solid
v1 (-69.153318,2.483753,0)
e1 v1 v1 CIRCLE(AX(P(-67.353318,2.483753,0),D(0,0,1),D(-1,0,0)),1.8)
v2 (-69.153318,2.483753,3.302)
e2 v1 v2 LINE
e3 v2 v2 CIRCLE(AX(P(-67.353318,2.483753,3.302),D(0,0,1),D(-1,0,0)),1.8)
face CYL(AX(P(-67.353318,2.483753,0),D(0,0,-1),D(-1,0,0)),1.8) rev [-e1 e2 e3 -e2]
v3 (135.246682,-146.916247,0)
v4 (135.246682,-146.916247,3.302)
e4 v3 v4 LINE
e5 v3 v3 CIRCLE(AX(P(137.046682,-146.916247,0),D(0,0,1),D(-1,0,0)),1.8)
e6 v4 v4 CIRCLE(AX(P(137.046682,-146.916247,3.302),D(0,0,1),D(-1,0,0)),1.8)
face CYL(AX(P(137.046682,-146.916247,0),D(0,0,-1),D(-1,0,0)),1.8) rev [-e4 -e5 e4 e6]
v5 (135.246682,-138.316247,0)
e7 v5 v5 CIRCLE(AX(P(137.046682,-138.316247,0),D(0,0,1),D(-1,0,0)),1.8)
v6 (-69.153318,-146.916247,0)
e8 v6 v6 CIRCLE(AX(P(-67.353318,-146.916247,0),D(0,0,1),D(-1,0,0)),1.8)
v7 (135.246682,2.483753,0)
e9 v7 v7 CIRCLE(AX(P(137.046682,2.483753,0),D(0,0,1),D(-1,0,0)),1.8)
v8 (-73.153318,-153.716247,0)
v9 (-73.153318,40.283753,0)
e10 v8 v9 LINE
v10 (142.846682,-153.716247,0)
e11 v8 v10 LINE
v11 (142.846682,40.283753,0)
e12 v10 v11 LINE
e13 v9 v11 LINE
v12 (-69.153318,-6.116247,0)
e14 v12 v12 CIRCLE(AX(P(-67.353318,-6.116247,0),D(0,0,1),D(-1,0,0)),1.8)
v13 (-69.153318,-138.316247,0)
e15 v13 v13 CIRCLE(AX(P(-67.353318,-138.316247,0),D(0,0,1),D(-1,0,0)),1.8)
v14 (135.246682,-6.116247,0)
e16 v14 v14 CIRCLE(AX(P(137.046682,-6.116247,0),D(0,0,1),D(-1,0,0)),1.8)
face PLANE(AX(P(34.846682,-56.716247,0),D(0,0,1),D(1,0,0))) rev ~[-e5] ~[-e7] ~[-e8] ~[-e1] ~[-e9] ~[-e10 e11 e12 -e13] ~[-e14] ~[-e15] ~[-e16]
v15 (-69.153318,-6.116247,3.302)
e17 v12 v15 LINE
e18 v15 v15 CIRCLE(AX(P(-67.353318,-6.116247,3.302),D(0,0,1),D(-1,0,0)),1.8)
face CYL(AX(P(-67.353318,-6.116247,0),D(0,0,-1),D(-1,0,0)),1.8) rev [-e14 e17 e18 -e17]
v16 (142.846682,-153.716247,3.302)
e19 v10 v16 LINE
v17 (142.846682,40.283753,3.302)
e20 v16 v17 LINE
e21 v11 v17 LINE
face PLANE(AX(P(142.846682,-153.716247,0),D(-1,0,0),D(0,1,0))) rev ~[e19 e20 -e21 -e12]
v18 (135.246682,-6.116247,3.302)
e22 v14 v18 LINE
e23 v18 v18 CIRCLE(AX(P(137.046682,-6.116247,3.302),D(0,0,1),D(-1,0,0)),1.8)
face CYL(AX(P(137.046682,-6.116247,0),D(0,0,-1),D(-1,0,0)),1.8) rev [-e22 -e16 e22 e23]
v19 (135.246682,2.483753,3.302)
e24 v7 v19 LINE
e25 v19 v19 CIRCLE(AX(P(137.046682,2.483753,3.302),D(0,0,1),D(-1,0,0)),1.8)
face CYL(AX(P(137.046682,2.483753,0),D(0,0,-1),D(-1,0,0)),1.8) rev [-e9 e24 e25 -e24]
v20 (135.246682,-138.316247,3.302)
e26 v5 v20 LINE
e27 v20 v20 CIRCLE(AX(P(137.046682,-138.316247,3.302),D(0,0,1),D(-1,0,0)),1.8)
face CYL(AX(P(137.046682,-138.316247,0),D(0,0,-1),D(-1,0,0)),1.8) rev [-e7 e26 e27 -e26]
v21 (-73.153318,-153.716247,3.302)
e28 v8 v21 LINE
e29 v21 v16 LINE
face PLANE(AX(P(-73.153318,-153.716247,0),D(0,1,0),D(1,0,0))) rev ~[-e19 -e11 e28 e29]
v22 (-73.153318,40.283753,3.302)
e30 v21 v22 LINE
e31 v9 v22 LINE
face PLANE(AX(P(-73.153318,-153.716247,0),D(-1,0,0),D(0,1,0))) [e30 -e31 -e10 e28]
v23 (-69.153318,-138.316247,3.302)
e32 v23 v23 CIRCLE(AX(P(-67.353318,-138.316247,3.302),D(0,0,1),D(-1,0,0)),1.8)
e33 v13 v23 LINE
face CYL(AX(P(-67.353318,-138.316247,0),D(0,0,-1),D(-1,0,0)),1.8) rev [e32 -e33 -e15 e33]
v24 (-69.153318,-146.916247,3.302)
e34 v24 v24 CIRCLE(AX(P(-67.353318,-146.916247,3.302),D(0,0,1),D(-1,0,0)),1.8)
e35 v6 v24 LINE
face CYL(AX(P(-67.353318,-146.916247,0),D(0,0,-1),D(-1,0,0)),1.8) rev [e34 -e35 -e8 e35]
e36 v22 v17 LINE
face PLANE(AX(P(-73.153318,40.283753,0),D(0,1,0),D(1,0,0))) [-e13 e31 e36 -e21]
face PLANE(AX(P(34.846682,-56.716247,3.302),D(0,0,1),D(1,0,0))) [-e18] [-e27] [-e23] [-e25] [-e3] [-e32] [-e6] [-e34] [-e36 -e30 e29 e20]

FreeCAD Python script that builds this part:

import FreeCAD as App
import Part
import Sketcher

V = App.Vector


def add_polygon(sketch, points):
    """Adds a closed chain of lines whose ends are joined by coincident constraints."""
    first, n = sketch.GeometryCount, len(points)
    for a, b in zip(points, points[1:] + points[:1]):
        sketch.addGeometry(Part.LineSegment(App.Vector(*a, 0), App.Vector(*b, 0)), False)
    for i in range(n):
        sketch.addConstraint(Sketcher.Constraint("Coincident", first + i, 2, first + (i + 1) % n, 1))

doc = App.newDocument("Part")
body = doc.addObject("PartDesign::Body", "Body")

sketch1 = body.newObject("Sketcher::SketchObject", "Sketch")
sketch1.AttachmentSupport = (doc.getObject("XY_Plane"), [""])
sketch1.MapMode = "FlatFace"
add_polygon(sketch1, [(-73.2, 40.3), (-73.2, -153.7), (142.8, -153.7), (142.8, 40.3)])
sketch1.addGeometry(Part.Circle(V(-67.4, -146.9, 0), V(0, 0, 1), 1.8), False)
sketch1.addGeometry(Part.Circle(V(-67.4, -138.3, 0), V(0, 0, 1), 1.8), False)
sketch1.addGeometry(Part.Circle(V(137, -146.9, 0), V(0, 0, 1), 1.8), False)
sketch1.addGeometry(Part.Circle(V(137, -138.3, 0), V(0, 0, 1), 1.8), False)
sketch1.addGeometry(Part.Circle(V(-67.4, -6.1, 0), V(0, 0, 1), 1.8), False)
sketch1.addGeometry(Part.Circle(V(-67.4, 2.5, 0), V(0, 0, 1), 1.8), False)
sketch1.addGeometry(Part.Circle(V(137, -6.1, 0), V(0, 0, 1), 1.8), False)
sketch1.addGeometry(Part.Circle(V(137, 2.5, 0), V(0, 0, 1), 1.8), False)
sketch1.addConstraint([
    Sketcher.Constraint("Vertical", 0),
    Sketcher.Constraint("Horizontal", 1),
    Sketcher.Constraint("Vertical", 2),
    Sketcher.Constraint("Horizontal", 3),
    Sketcher.Constraint("Equal", 4, 5),
    Sketcher.Constraint("Equal", 5, 6),
    Sketcher.Constraint("Equal", 6, 7),
    Sketcher.Constraint("Equal", 7, 8),
    Sketcher.Constraint("Equal", 8, 9),
    Sketcher.Constraint("Equal", 9, 10),
    Sketcher.Constraint("Equal", 10, 11),
    Sketcher.Constraint("Horizontal", 4, 3, 6, 3),
    Sketcher.Constraint("Horizontal", 5, 3, 7, 3),
    Sketcher.Constraint("Horizontal", 8, 3, 10, 3),
    Sketcher.Constraint("Horizontal", 9, 3, 11, 3),
    Sketcher.Constraint("Vertical", 4, 3, 5, 3),
    Sketcher.Constraint("Vertical", 6, 3, 7, 3),
    Sketcher.Constraint("Vertical", 5, 3, 8, 3),
    Sketcher.Constraint("Vertical", 8, 3, 9, 3),
    Sketcher.Constraint("Vertical", 7, 3, 10, 3),
    Sketcher.Constraint("Vertical", 10, 3, 11, 3),
    Sketcher.Constraint("Diameter", 4, 3.6),
    Sketcher.Constraint("DistanceX", 1, 1, 1, 2, 216.0),
    Sketcher.Constraint("DistanceY", 0, 2, 0, 1, 194.0),
    Sketcher.Constraint("DistanceY", 4, 3, 5, 3, 8.6),
    Sketcher.Constraint("DistanceX", 4, 3, 6, 3, 204.4),
    Sketcher.Constraint("DistanceY", 5, 3, 8, 3, 132.2),
    Sketcher.Constraint("DistanceY", 8, 3, 9, 3, 8.6),
    Sketcher.Constraint("DistanceX", 0, 2, 4, 3, 5.8),
    Sketcher.Constraint("DistanceY", 0, 2, 4, 3, 6.8),
    Sketcher.Constraint("DistanceX", 4, 3, -1, 1, 67.353318),
    Sketcher.Constraint("DistanceY", 4, 3, -1, 1, 146.916247),
])
pad1 = body.newObject("PartDesign::Pad", "Pad")
pad1.Profile = sketch1
pad1.Length = 3.302

doc.recompute()
